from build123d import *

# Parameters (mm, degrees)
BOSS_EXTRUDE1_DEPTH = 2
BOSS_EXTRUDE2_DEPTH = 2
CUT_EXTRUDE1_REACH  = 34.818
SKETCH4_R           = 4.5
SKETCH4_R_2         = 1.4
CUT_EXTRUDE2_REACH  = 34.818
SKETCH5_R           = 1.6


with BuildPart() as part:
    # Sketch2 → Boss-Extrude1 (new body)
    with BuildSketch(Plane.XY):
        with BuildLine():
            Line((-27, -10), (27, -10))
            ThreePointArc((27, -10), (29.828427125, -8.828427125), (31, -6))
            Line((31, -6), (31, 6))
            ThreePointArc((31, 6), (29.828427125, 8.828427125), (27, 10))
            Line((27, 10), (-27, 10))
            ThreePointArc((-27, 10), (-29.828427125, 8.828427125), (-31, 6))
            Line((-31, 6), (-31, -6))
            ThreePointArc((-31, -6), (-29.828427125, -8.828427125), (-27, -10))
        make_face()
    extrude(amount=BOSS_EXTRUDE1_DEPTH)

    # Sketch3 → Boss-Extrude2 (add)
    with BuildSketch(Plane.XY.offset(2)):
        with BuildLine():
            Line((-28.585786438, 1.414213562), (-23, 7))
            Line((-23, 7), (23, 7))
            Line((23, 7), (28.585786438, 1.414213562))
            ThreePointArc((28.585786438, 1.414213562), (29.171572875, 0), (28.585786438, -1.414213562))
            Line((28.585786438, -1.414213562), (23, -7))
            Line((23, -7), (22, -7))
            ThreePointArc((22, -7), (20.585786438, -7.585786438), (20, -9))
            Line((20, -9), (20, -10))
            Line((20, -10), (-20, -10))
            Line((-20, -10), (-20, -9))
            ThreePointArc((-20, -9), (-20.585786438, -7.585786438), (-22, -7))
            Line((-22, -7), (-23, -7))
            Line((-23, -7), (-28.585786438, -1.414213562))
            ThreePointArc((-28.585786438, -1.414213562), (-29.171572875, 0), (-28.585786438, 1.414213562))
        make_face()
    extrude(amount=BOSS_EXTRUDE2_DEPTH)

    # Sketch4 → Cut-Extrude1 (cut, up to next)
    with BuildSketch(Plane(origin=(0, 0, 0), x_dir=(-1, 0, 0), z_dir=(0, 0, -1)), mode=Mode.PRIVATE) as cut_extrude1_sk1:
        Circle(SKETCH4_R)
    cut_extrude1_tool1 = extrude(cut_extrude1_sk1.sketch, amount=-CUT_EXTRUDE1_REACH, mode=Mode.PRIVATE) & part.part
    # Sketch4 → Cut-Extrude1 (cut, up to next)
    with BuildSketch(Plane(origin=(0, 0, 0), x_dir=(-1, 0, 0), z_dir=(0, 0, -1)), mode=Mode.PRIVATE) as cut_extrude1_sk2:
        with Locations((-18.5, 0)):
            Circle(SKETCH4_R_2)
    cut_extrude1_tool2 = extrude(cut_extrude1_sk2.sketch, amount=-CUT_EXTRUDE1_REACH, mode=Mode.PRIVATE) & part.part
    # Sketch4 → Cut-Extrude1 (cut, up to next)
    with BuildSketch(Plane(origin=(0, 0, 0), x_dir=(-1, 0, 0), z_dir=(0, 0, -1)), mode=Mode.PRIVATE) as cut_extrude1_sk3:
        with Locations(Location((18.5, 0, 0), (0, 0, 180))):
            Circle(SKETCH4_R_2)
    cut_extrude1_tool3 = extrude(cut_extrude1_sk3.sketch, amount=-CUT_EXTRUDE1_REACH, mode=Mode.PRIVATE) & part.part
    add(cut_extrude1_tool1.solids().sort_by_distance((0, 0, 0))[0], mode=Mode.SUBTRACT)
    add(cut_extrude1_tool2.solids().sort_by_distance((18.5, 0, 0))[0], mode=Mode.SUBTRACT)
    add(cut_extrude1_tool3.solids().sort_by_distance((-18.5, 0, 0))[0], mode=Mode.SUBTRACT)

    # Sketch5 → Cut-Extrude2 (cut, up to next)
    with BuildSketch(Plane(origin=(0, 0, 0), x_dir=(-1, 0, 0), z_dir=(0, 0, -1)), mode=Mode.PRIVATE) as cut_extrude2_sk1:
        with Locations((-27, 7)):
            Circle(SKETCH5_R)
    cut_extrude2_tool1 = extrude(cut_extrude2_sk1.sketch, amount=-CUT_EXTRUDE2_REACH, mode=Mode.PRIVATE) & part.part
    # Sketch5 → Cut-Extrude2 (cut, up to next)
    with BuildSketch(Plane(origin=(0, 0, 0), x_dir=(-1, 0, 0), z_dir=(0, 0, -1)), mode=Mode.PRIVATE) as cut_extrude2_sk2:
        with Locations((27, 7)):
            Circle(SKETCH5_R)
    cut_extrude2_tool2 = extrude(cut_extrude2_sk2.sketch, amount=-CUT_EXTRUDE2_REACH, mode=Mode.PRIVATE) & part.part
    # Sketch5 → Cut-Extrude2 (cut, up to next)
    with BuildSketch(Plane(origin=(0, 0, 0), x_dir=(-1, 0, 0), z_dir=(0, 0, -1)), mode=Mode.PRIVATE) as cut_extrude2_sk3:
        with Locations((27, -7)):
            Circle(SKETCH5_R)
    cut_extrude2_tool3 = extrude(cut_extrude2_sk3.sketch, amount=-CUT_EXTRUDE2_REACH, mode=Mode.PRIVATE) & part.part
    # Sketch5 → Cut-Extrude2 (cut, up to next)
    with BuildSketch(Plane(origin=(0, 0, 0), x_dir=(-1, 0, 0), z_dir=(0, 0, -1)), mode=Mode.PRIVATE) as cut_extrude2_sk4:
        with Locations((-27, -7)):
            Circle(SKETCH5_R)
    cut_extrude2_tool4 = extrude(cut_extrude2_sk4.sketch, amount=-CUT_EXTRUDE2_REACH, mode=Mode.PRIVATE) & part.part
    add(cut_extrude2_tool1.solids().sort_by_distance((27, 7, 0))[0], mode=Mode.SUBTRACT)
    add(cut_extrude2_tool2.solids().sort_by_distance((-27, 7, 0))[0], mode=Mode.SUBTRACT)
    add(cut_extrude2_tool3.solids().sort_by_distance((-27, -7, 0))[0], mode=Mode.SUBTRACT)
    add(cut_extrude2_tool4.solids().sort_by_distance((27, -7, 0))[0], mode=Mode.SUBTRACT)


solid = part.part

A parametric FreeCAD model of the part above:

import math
import FreeCAD as App
import Part
import Sketcher

doc = App.newDocument("Part")
params = doc.addObject("Spreadsheet::Sheet", "Params")
for row, (alias, value) in enumerate([
    ("sketch1_radius", "4 mm"),
    ("sketch1_width", "54 mm"),
    ("sketch1_height", "12 mm"),
    ("pad1_length", "2 mm"),
    ("sketch2_radius", "2 mm"),
    ("sketch2_width", "1 mm"),
    ("sketch2_width2", "40 mm"),
    ("pad2_length", "2 mm"),
    ("sketch3_diameter", "9 mm"),
    ("sketch4_diameter", "2.8 mm"),
    ("sketch5_diameter", "2.8 mm"),
    ("sketch6_diameter", "3.2 mm"),
    ("sketch7_diameter", "3.2 mm"),
    ("sketch8_diameter", "3.2 mm"),
    ("sketch9_diameter", "3.2 mm"),
], start=1):
    params.set(f"A{row}", alias)
    params.set(f"B{row}", "=" + value)
    params.setAlias(f"B{row}", alias)

body = doc.addObject("PartDesign::Body", "Body")

# Sketch on XY plane
sketch1 = doc.addObject("Sketcher::SketchObject", "Sketch")
body.addObject(sketch1)
sketch1.AttachmentSupport = (doc.XY_Plane, [""])
sketch1.MapMode = "FlatFace"
sketch1.addGeometry(Part.LineSegment(App.Vector(-27, -10, 0), App.Vector(27, -10, 0)), False)
sketch1.addGeometry(Part.ArcOfCircle(Part.Circle(App.Vector(27, -6, 0), App.Vector(0, 0, 1), 4), math.radians(-90), math.radians(0)), False)
sketch1.addGeometry(Part.LineSegment(App.Vector(31, -6, 0), App.Vector(31, 6, 0)), False)
sketch1.addGeometry(Part.ArcOfCircle(Part.Circle(App.Vector(27, 6, 0), App.Vector(0, 0, 1), 4), math.radians(0), math.radians(90)), False)
sketch1.addGeometry(Part.LineSegment(App.Vector(27, 10, 0), App.Vector(-27, 10, 0)), False)
sketch1.addGeometry(Part.ArcOfCircle(Part.Circle(App.Vector(-27, 6, 0), App.Vector(0, 0, 1), 4), math.radians(90), math.radians(180)), False)
sketch1.addGeometry(Part.LineSegment(App.Vector(-31, 6, 0), App.Vector(-31, -6, 0)), False)
sketch1.addGeometry(Part.ArcOfCircle(Part.Circle(App.Vector(-27, -6, 0), App.Vector(0, 0, 1), 4), math.radians(180), math.radians(270)), False)
sketch1.addConstraint(Sketcher.Constraint("Tangent", 0, 2, 1, 1))
sketch1.addConstraint(Sketcher.Constraint("Tangent", 1, 2, 2, 1))
sketch1.addConstraint(Sketcher.Constraint("Tangent", 2, 2, 3, 1))
sketch1.addConstraint(Sketcher.Constraint("Tangent", 3, 2, 4, 1))
sketch1.addConstraint(Sketcher.Constraint("Tangent", 4, 2, 5, 1))
sketch1.addConstraint(Sketcher.Constraint("Tangent", 5, 2, 6, 1))
sketch1.addConstraint(Sketcher.Constraint("Tangent", 6, 2, 7, 1))
sketch1.addConstraint(Sketcher.Constraint("Tangent", 7, 2, 0, 1))
sketch1.addConstraint(Sketcher.Constraint("Horizontal", 0))
sketch1.addConstraint(Sketcher.Constraint("Vertical", 2))
sketch1.addConstraint(Sketcher.Constraint("Horizontal", 4))
sketch1.addConstraint(Sketcher.Constraint("Vertical", 6))
sketch1.addConstraint(Sketcher.Constraint("Equal", 1, 3))
sketch1.addConstraint(Sketcher.Constraint("Equal", 3, 5))
sketch1.addConstraint(Sketcher.Constraint("Equal", 5, 7))
sketch1.addConstraint(Sketcher.Constraint("Symmetric", 1, 3, 5, 3, -1, 1))
sketch1.addConstraint(Sketcher.Constraint("Radius", 1, 4.0))
sketch1.addConstraint(Sketcher.Constraint("DistanceX", 0, 1, 0, 2, 54.0))
sketch1.addConstraint(Sketcher.Constraint("DistanceY", 2, 1, 2, 2, 12.0))
sketch1.setExpression("Constraints[16]", "Params.sketch1_radius")
sketch1.setExpression("Constraints[17]", "Params.sketch1_width")
sketch1.setExpression("Constraints[18]", "Params.sketch1_height")
pad1 = doc.addObject("PartDesign::Pad", "Pad")
body.addObject(pad1)
pad1.Profile = sketch1
pad1.setExpression("Length", "Params.pad1_length")

# Sketch on XY plane
sketch2 = doc.addObject("Sketcher::SketchObject", "Sketch001")
body.addObject(sketch2)
sketch2.AttachmentSupport = (doc.XY_Plane, [""])
sketch2.MapMode = "FlatFace"
sketch2.AttachmentOffset = App.Placement(App.Vector(0, 0, 2), App.Rotation())
sketch2.addGeometry(Part.LineSegment(App.Vector(-23, 7, 0), App.Vector(-28.6, 1.4, 0)), False)
sketch2.addGeometry(Part.ArcOfCircle(Part.Circle(App.Vector(-27.2, 0, 0), App.Vector(0, 0, 1), 2), math.radians(135), math.radians(225)), False)
sketch2.addGeometry(Part.LineSegment(App.Vector(-28.6, -1.4, 0), App.Vector(-23, -7, 0)), False)
sketch2.addGeometry(Part.LineSegment(App.Vector(-23, -7, 0), App.Vector(-22, -7, 0)), False)
sketch2.addGeometry(Part.ArcOfCircle(Part.Circle(App.Vector(-22, -9, 0), App.Vector(0, 0, 1), 2), math.radians(0), math.radians(90)), False)
sketch2.addGeometry(Part.LineSegment(App.Vector(-20, -9, 0), App.Vector(-20, -10, 0)), False)
sketch2.addGeometry(Part.LineSegment(App.Vector(-20, -10, 0), App.Vector(20, -10, 0)), False)
sketch2.addGeometry(Part.LineSegment(App.Vector(20, -10, 0), App.Vector(20, -9, 0)), False)
sketch2.addGeometry(Part.ArcOfCircle(Part.Circle(App.Vector(22, -9, 0), App.Vector(0, 0, 1), 2), math.radians(90), math.radians(180)), False)
sketch2.addGeometry(Part.LineSegment(App.Vector(22, -7, 0), App.Vector(23, -7, 0)), False)
sketch2.addGeometry(Part.LineSegment(App.Vector(23, -7, 0), App.Vector(28.6, -1.4, 0)), False)
sketch2.addGeometry(Part.ArcOfCircle(Part.Circle(App.Vector(27.2, 0, 0), App.Vector(0, 0, 1), 2), math.radians(-45), math.radians(45)), False)
sketch2.addGeometry(Part.LineSegment(App.Vector(28.6, 1.4, 0), App.Vector(23, 7, 0)), False)
sketch2.addGeometry(Part.LineSegment(App.Vector(23, 7, 0), App.Vector(-23, 7, 0)), False)
sketch2.addConstraint(Sketcher.Constraint("Tangent", 0, 2, 1, 1))
sketch2.addConstraint(Sketcher.Constraint("Tangent", 1, 2, 2, 1))
sketch2.addConstraint(Sketcher.Constraint("Coincident", 2, 2, 3, 1))
sketch2.addConstraint(Sketcher.Constraint("Tangent", 3, 2, 4, 2))
sketch2.addConstraint(Sketcher.Constraint("Tangent", 4, 1, 5, 1))
sketch2.addConstraint(Sketcher.Constraint("Coincident", 5, 2, 6, 1))
sketch2.addConstraint(Sketcher.Constraint("Coincident", 6, 2, 7, 1))
sketch2.addConstraint(Sketcher.Constraint("Tangent", 7, 2, 8, 2))
sketch2.addConstraint(Sketcher.Constraint("Tangent", 8, 1, 9, 1))
sketch2.addConstraint(Sketcher.Constraint("Coincident", 9, 2, 10, 1))
sketch2.addConstraint(Sketcher.Constraint("Tangent", 10, 2, 11, 1))
sketch2.addConstraint(Sketcher.Constraint("Tangent", 11, 2, 12, 1))
sketch2.addConstraint(Sketcher.Constraint("Coincident", 12, 2, 13, 1))
sketch2.addConstraint(Sketcher.Constraint("Coincident", 13, 2, 0, 1))
sketch2.addConstraint(Sketcher.Constraint("Horizontal", 3))
sketch2.addConstraint(Sketcher.Constraint("Vertical", 5))
sketch2.addConstraint(Sketcher.Constraint("Horizontal", 6))
sketch2.addConstraint(Sketcher.Constraint("Vertical", 7))
sketch2.addConstraint(Sketcher.Constraint("Horizontal", 9))
sketch2.addConstraint(Sketcher.Constraint("Horizontal", 13))
sketch2.addConstraint(Sketcher.Constraint("Equal", 1, 4))
sketch2.addConstraint(Sketcher.Constraint("Equal", 4, 8))
sketch2.addConstraint(Sketcher.Constraint("Equal", 8, 11))
sketch2.addConstraint(Sketcher.Constraint("Symmetric", 1, 3, 11, 3, -1, 1))
sketch2.addConstraint(Sketcher.Constraint("Symmetric", 2, 2, 12, 2, -1, 1))
sketch2.addConstraint(Sketcher.Constraint("Symmetric", 9, 2, 13, 2, -1, 1))
sketch2.addConstraint(Sketcher.Constraint("Symmetric", 1, 2, 10, 2, -2))
sketch2.addConstraint(Sketcher.Constraint("Perpendicular", 0, 2))
sketch2.addConstraint(Sketcher.Constraint("Equal", 3, 9))
sketch2.addConstraint(Sketcher.Constraint("Equal", 9, 5))
sketch2.addConstraint(Sketcher.Constraint("Radius", 1, 2.0))
sketch2.addConstraint(Sketcher.Constraint("DistanceX", 3, 1, 3, 2, 1.0))
sketch2.addConstraint(Sketcher.Constraint("DistanceX", 6, 1, 6, 2, 40.0))
sketch2.addConstraint(Sketcher.Constraint("DistanceY", 4, 3, -1, 1, 9.0))
sketch2.setExpression("Constraints[30]", "Params.sketch2_radius")
sketch2.setExpression("Constraints[31]", "Params.sketch2_width")
sketch2.setExpression("Constraints[32]", "Params.sketch2_width2")
pad2 = doc.addObject("PartDesign::Pad", "Pad001")
body.addObject(pad2)
pad2.Profile = sketch2
pad2.setExpression("Length", "Params.pad2_length")

# Sketch on XY plane
sketch3 = doc.addObject("Sketcher::SketchObject", "Sketch002")
body.addObject(sketch3)
sketch3.AttachmentSupport = (doc.XY_Plane, [""])
sketch3.MapMode = "FlatFace"
sketch3.addGeometry(Part.Circle(App.Vector(0, 0, 0), App.Vector(0, 0, 1), 4.5), False)
sketch3.addConstraint(Sketcher.Constraint("Coincident", 0, 3, -1, 1))
sketch3.addConstraint(Sketcher.Constraint("Diameter", 0, 9.0))
sketch3.setExpression("Constraints[1]", "Params.sketch3_diameter")
pocket1 = doc.addObject("PartDesign::Pocket", "Pocket")
body.addObject(pocket1)
pocket1.Profile = sketch3
pocket1.Type = "UpToFirst"
pocket1.Reversed = True

# Sketch on XY plane
sketch4 = doc.addObject("Sketcher::SketchObject", "Sketch003")
body.addObject(sketch4)
sketch4.AttachmentSupport = (doc.XY_Plane, [""])
sketch4.MapMode = "FlatFace"
sketch4.addGeometry(Part.Circle(App.Vector(18.5, 0, 0), App.Vector(0, 0, 1), 1.4), False)
sketch4.addConstraint(Sketcher.Constraint("PointOnObject", 0, 3, -1))
sketch4.addConstraint(Sketcher.Constraint("Diameter", 0, 2.8))
sketch4.addConstraint(Sketcher.Constraint("DistanceX", -1, 1, 0, 3, 18.5))
sketch4.setExpression("Constraints[1]", "Params.sketch4_diameter")
pocket2 = doc.addObject("PartDesign::Pocket", "Pocket001")
body.addObject(pocket2)
pocket2.Profile = sketch4
pocket2.Type = "UpToFirst"
pocket2.Reversed = True

# Sketch on XY plane
sketch5 = doc.addObject("Sketcher::SketchObject", "Sketch004")
body.addObject(sketch5)
sketch5.AttachmentSupport = (doc.XY_Plane, [""])
sketch5.MapMode = "FlatFace"
sketch5.addGeometry(Part.Circle(App.Vector(-18.5, 0, 0), App.Vector(0, 0, 1), 1.4), False)
sketch5.addConstraint(Sketcher.Constraint("PointOnObject", 0, 3, -1))
sketch5.addConstraint(Sketcher.Constraint("Diameter", 0, 2.8))
sketch5.addConstraint(Sketcher.Constraint("DistanceX", 0, 3, -1, 1, 18.5))
sketch5.setExpression("Constraints[1]", "Params.sketch5_diameter")
pocket3 = doc.addObject("PartDesign::Pocket", "Pocket002")
body.addObject(pocket3)
pocket3.Profile = sketch5
pocket3.Type = "UpToFirst"
pocket3.Reversed = True

# Sketch on XY plane
sketch6 = doc.addObject("Sketcher::SketchObject", "Sketch005")
body.addObject(sketch6)
sketch6.AttachmentSupport = (doc.XY_Plane, [""])
sketch6.MapMode = "FlatFace"
sketch6.addGeometry(Part.Circle(App.Vector(27, 7, 0), App.Vector(0, 0, 1), 1.6), False)
sketch6.addConstraint(Sketcher.Constraint("Diameter", 0, 3.2))
sketch6.addConstraint(Sketcher.Constraint("DistanceX", -1, 1, 0, 3, 27.0))
sketch6.addConstraint(Sketcher.Constraint("DistanceY", -1, 1, 0, 3, 7.0))
sketch6.setExpression("Constraints[0]", "Params.sketch6_diameter")
pocket4 = doc.addObject("PartDesign::Pocket", "Pocket003")
body.addObject(pocket4)
pocket4.Profile = sketch6
pocket4.Type = "UpToFirst"
pocket4.Reversed = True

# Sketch on XY plane
sketch7 = doc.addObject("Sketcher::SketchObject", "Sketch006")
body.addObject(sketch7)
sketch7.AttachmentSupport = (doc.XY_Plane, [""])
sketch7.MapMode = "FlatFace"
sketch7.addGeometry(Part.Circle(App.Vector(-27, 7, 0), App.Vector(0, 0, 1), 1.6), False)
sketch7.addConstraint(Sketcher.Constraint("Diameter", 0, 3.2))
sketch7.addConstraint(Sketcher.Constraint("DistanceX", 0, 3, -1, 1, 27.0))
sketch7.addConstraint(Sketcher.Constraint("DistanceY", -1, 1, 0, 3, 7.0))
sketch7.setExpression("Constraints[0]", "Params.sketch7_diameter")
pocket5 = doc.addObject("PartDesign::Pocket", "Pocket004")
body.addObject(pocket5)
pocket5.Profile = sketch7
pocket5.Type = "UpToFirst"
pocket5.Reversed = True

# Sketch on XY plane
sketch8 = doc.addObject("Sketcher::SketchObject", "Sketch007")
body.addObject(sketch8)
sketch8.AttachmentSupport = (doc.XY_Plane, [""])
sketch8.MapMode = "FlatFace"
sketch8.addGeometry(Part.Circle(App.Vector(-27, -7, 0), App.Vector(0, 0, 1), 1.6), False)
sketch8.addConstraint(Sketcher.Constraint("Diameter", 0, 3.2))
sketch8.addConstraint(Sketcher.Constraint("DistanceX", 0, 3, -1, 1, 27.0))
sketch8.addConstraint(Sketcher.Constraint("DistanceY", 0, 3, -1, 1, 7.0))
sketch8.setExpression("Constraints[0]", "Params.sketch8_diameter")
pocket6 = doc.addObject("PartDesign::Pocket", "Pocket005")
body.addObject(pocket6)
pocket6.Profile = sketch8
pocket6.Type = "UpToFirst"
pocket6.Reversed = True

# Sketch on XY plane
sketch9 = doc.addObject("Sketcher::SketchObject", "Sketch008")
body.addObject(sketch9)
sketch9.AttachmentSupport = (doc.XY_Plane, [""])
sketch9.MapMode = "FlatFace"
sketch9.addGeometry(Part.Circle(App.Vector(27, -7, 0), App.Vector(0, 0, 1), 1.6), False)
sketch9.addConstraint(Sketcher.Constraint("Diameter", 0, 3.2))
sketch9.addConstraint(Sketcher.Constraint("DistanceX", -1, 1, 0, 3, 27.0))
sketch9.addConstraint(Sketcher.Constraint("DistanceY", 0, 3, -1, 1, 7.0))
sketch9.setExpression("Constraints[0]", "Params.sketch9_diameter")
pocket7 = doc.addObject("PartDesign::Pocket", "Pocket006")
body.addObject(pocket7)
pocket7.Profile = sketch9
pocket7.Type = "UpToFirst"
pocket7.Reversed = True

doc.recompute()
